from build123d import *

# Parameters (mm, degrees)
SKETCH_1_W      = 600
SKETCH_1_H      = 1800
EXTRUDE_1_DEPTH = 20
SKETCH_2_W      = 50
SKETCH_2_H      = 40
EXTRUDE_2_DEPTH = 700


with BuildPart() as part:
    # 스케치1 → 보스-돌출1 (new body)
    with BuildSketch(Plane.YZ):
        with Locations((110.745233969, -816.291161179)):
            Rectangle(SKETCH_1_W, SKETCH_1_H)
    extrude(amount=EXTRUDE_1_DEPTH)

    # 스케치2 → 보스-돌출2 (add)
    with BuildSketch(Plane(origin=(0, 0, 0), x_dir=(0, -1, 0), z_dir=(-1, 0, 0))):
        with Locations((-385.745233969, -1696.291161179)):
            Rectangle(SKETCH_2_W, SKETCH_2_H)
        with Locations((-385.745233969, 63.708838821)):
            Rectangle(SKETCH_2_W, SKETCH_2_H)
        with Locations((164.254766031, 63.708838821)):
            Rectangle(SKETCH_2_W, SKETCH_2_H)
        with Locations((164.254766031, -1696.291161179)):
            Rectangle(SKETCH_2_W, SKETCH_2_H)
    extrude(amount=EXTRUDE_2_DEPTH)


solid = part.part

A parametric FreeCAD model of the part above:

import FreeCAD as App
import Part
import Sketcher
Q = App.Units.Quantity

doc = App.newDocument("Part")
params = doc.addObject("Spreadsheet::Sheet", "Params")
for row, (alias, value) in enumerate([
    ("sketch1_width", "600 mm"),
    ("sketch1_height", "1800 mm"),
    ("pad1_length", "20 mm"),
    ("sketch2_width", "50 mm"),
    ("sketch2_height", "40 mm"),
    ("pad2_length", "700 mm"),
], start=1):
    params.set(f"A{row}", alias)
    params.set(f"B{row}", "=" + value)
    params.setAlias(f"B{row}", alias)

body = doc.addObject("PartDesign::Body", "Body")

# Sketch on YZ plane
sketch1 = doc.addObject("Sketcher::SketchObject", "Sketch")
body.addObject(sketch1)
sketch1.AttachmentSupport = (doc.YZ_Plane, [""])
sketch1.MapMode = "FlatFace"
sketch1.addGeometry(Part.LineSegment(App.Vector(-189, 84, 0), App.Vector(-189, -1716, 0)), False)
sketch1.addGeometry(Part.LineSegment(App.Vector(-189, -1716, 0), App.Vector(411, -1716, 0)), False)
sketch1.addGeometry(Part.LineSegment(App.Vector(411, -1716, 0), App.Vector(411, 84, 0)), False)
sketch1.addGeometry(Part.LineSegment(App.Vector(411, 84, 0), App.Vector(-189, 84, 0)), False)
sketch1.addConstraint(Sketcher.Constraint("Coincident", 0, 2, 1, 1))
sketch1.addConstraint(Sketcher.Constraint("Coincident", 1, 2, 2, 1))
sketch1.addConstraint(Sketcher.Constraint("Coincident", 2, 2, 3, 1))
sketch1.addConstraint(Sketcher.Constraint("Coincident", 3, 2, 0, 1))
sketch1.addConstraint(Sketcher.Constraint("Vertical", 0))
sketch1.addConstraint(Sketcher.Constraint("Horizontal", 1))
sketch1.addConstraint(Sketcher.Constraint("Vertical", 2))
sketch1.addConstraint(Sketcher.Constraint("Horizontal", 3))
sketch1.addConstraint(Sketcher.Constraint("DistanceX", 1, 1, 1, 2, Q("600 mm")))
sketch1.addConstraint(Sketcher.Constraint("DistanceY", 0, 2, 0, 1, Q("1800 mm")))
sketch1.addConstraint(Sketcher.Constraint("DistanceY", 0, 2, -1, 1, Q("1716.291161 mm")))
sketch1.addConstraint(Sketcher.Constraint("DistanceX", 0, 2, -1, 1, Q("189.254766 mm")))
sketch1.setExpression("Constraints[8]", "Params.sketch1_width")
sketch1.setExpression("Constraints[9]", "Params.sketch1_height")
pad1 = doc.addObject("PartDesign::Pad", "Pad")
body.addObject(pad1)
pad1.Profile = sketch1
pad1.setExpression("Length", "Params.pad1_length")

# Sketch on YZ plane
sketch2 = doc.addObject("Sketcher::SketchObject", "Sketch001")
body.addObject(sketch2)
sketch2.AttachmentSupport = (doc.YZ_Plane, [""])
sketch2.MapMode = "FlatFace"
sketch2.addGeometry(Part.LineSegment(App.Vector(411, -1676, 0), App.Vector(411, -1716, 0)), False)
sketch2.addGeometry(Part.LineSegment(App.Vector(411, -1716, 0), App.Vector(361, -1716, 0)), False)
sketch2.addGeometry(Part.LineSegment(App.Vector(361, -1716, 0), App.Vector(361, -1676, 0)), False)
sketch2.addGeometry(Part.LineSegment(App.Vector(361, -1676, 0), App.Vector(411, -1676, 0)), False)
sketch2.addGeometry(Part.LineSegment(App.Vector(411, 84, 0), App.Vector(411, 44, 0)), False)
sketch2.addGeometry(Part.LineSegment(App.Vector(411, 44, 0), App.Vector(361, 44, 0)), False)
sketch2.addGeometry(Part.LineSegment(App.Vector(361, 44, 0), App.Vector(361, 84, 0)), False)
sketch2.addGeometry(Part.LineSegment(App.Vector(361, 84, 0), App.Vector(411, 84, 0)), False)
sketch2.addGeometry(Part.LineSegment(App.Vector(-139, 84, 0), App.Vector(-139, 44, 0)), False)
sketch2.addGeometry(Part.LineSegment(App.Vector(-139, 44, 0), App.Vector(-189, 44, 0)), False)
sketch2.addGeometry(Part.LineSegment(App.Vector(-189, 44, 0), App.Vector(-189, 84, 0)), False)
sketch2.addGeometry(Part.LineSegment(App.Vector(-189, 84, 0), App.Vector(-139, 84, 0)), False)
sketch2.addGeometry(Part.LineSegment(App.Vector(-139, -1676, 0), App.Vector(-139, -1716, 0)), False)
sketch2.addGeometry(Part.LineSegment(App.Vector(-139, -1716, 0), App.Vector(-189, -1716, 0)), False)
sketch2.addGeometry(Part.LineSegment(App.Vector(-189, -1716, 0), App.Vector(-189, -1676, 0)), False)
sketch2.addGeometry(Part.LineSegment(App.Vector(-189, -1676, 0), App.Vector(-139, -1676, 0)), False)
sketch2.addConstraint(Sketcher.Constraint("Coincident", 0, 2, 1, 1))
sketch2.addConstraint(Sketcher.Constraint("Coincident", 1, 2, 2, 1))
sketch2.addConstraint(Sketcher.Constraint("Coincident", 2, 2, 3, 1))
sketch2.addConstraint(Sketcher.Constraint("Coincident", 3, 2, 0, 1))
sketch2.addConstraint(Sketcher.Constraint("Coincident", 4, 2, 5, 1))
sketch2.addConstraint(Sketcher.Constraint("Coincident", 5, 2, 6, 1))
sketch2.addConstraint(Sketcher.Constraint("Coincident", 6, 2, 7, 1))
sketch2.addConstraint(Sketcher.Constraint("Coincident", 7, 2, 4, 1))
sketch2.addConstraint(Sketcher.Constraint("Coincident", 8, 2, 9, 1))
sketch2.addConstraint(Sketcher.Constraint("Coincident", 9, 2, 10, 1))
sketch2.addConstraint(Sketcher.Constraint("Coincident", 10, 2, 11, 1))
sketch2.addConstraint(Sketcher.Constraint("Coincident", 11, 2, 8, 1))
sketch2.addConstraint(Sketcher.Constraint("Coincident", 12, 2, 13, 1))
sketch2.addConstraint(Sketcher.Constraint("Coincident", 13, 2, 14, 1))
sketch2.addConstraint(Sketcher.Constraint("Coincident", 14, 2, 15, 1))
sketch2.addConstraint(Sketcher.Constraint("Coincident", 15, 2, 12, 1))
sketch2.addConstraint(Sketcher.Constraint("Vertical", 0))
sketch2.addConstraint(Sketcher.Constraint("Horizontal", 1))
sketch2.addConstraint(Sketcher.Constraint("Vertical", 2))
sketch2.addConstraint(Sketcher.Constraint("Horizontal", 3))
sketch2.addConstraint(Sketcher.Constraint("Vertical", 4))
sketch2.addConstraint(Sketcher.Constraint("Horizontal", 5))
sketch2.addConstraint(Sketcher.Constraint("Vertical", 6))
sketch2.addConstraint(Sketcher.Constraint("Horizontal", 7))
sketch2.addConstraint(Sketcher.Constraint("Vertical", 8))
sketch2.addConstraint(Sketcher.Constraint("Horizontal", 9))
sketch2.addConstraint(Sketcher.Constraint("Vertical", 10))
sketch2.addConstraint(Sketcher.Constraint("Horizontal", 11))
sketch2.addConstraint(Sketcher.Constraint("Vertical", 12))
sketch2.addConstraint(Sketcher.Constraint("Horizontal", 13))
sketch2.addConstraint(Sketcher.Constraint("Vertical", 14))
sketch2.addConstraint(Sketcher.Constraint("Horizontal", 15))
sketch2.addConstraint(Sketcher.Constraint("Horizontal", 5, 2, 8, 2))
sketch2.addConstraint(Sketcher.Constraint("Horizontal", 7, 2, 10, 2))
sketch2.addConstraint(Sketcher.Constraint("Horizontal", 1, 2, 12, 2))
sketch2.addConstraint(Sketcher.Constraint("Horizontal", 3, 2, 14, 2))
sketch2.addConstraint(Sketcher.Constraint("Vertical", 3, 2, 4, 2))
sketch2.addConstraint(Sketcher.Constraint("Vertical", 2, 2, 5, 2))
sketch2.addConstraint(Sketcher.Constraint("Vertical", 11, 2, 12, 2))
sketch2.addConstraint(Sketcher.Constraint("Vertical", 10, 2, 13, 2))
sketch2.addConstraint(Sketcher.Constraint("Equal", 7, 9))
sketch2.addConstraint(Sketcher.Constraint("Equal", 2, 4))
sketch2.addConstraint(Sketcher.Constraint("DistanceX", 1, 2, 1, 1, Q("50 mm")))
sketch2.addConstraint(Sketcher.Constraint("DistanceY", 0, 2, 0, 1, Q("40 mm")))
sketch2.addConstraint(Sketcher.Constraint("DistanceY", 3, 2, 4, 2, Q("1720 mm")))
sketch2.addConstraint(Sketcher.Constraint("DistanceX", 8, 2, 5, 2, Q("500 mm")))
sketch2.addConstraint(Sketcher.Constraint("DistanceY", 0, 2, -1, 1, Q("1716.291161 mm")))
sketch2.addConstraint(Sketcher.Constraint("DistanceX", -1, 1, 0, 2, Q("410.745234 mm")))
sketch2.setExpression("Constraints[42]", "Params.sketch2_width")
sketch2.setExpression("Constraints[43]", "Params.sketch2_height")
pad2 = doc.addObject("PartDesign::Pad", "Pad001")
body.addObject(pad2)
pad2.Profile = sketch2
pad2.setExpression("Length", "Params.pad2_length")
pad2.Reversed = True

doc.recompute()
